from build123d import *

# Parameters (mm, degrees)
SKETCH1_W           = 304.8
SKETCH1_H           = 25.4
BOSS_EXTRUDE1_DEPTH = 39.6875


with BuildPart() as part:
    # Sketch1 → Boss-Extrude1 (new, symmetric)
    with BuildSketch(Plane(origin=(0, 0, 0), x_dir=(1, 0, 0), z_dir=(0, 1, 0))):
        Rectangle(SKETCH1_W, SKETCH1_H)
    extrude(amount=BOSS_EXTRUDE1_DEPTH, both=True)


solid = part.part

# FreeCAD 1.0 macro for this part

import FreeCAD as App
import Part
import Sketcher

V = App.Vector
Q = App.Units.Quantity


def add_polygon(sketch, points):
    """Adds a closed chain of lines whose ends are joined by coincident constraints."""
    first, n = sketch.GeometryCount, len(points)
    for a, b in zip(points, points[1:] + points[:1]):
        sketch.addGeometry(Part.LineSegment(App.Vector(*a, 0), App.Vector(*b, 0)), False)
    for i in range(n):
        sketch.addConstraint(Sketcher.Constraint("Coincident", first + i, 2, first + (i + 1) % n, 1))

doc = App.newDocument("Part")
params = doc.addObject("Spreadsheet::Sheet", "Params")
for row, (alias, value) in enumerate([
    ("sketch1_width", "12 in"),
    ("sketch1_height", "1 in"),
    ("pad1_length", "3.125 in"),
], start=1):
    params.set(f"A{row}", alias)
    params.set(f"B{row}", "=" + value)
    params.setAlias(f"B{row}", alias)

body = doc.addObject("PartDesign::Body", "Body")

# Sketch on XZ plane
sketch1 = body.newObject("Sketcher::SketchObject", "Sketch")
sketch1.AttachmentSupport = (doc.getObject("XZ_Plane"), [""])
sketch1.MapMode = "FlatFace"
add_polygon(sketch1, [(-152, -13), (-152, 13), (152, 13), (152, -13)])  # lines 0-3
sketch1.addConstraint([
    Sketcher.Constraint("Vertical", 0),
    Sketcher.Constraint("Horizontal", 1),
    Sketcher.Constraint("Vertical", 2),
    Sketcher.Constraint("Horizontal", 3),
    Sketcher.Constraint("Symmetric", 0, 2, 2, 2, -1, 1),
    Sketcher.Constraint("DistanceX", 1, 1, 1, 2, Q("12 in")),
    Sketcher.Constraint("DistanceY", 0, 1, 0, 2, Q("1 in")),
])
sketch1.setExpression("Constraints[9]", "Params.sketch1_width")
sketch1.setExpression("Constraints[10]", "Params.sketch1_height")
pad1 = body.newObject("PartDesign::Pad", "Pad")
pad1.Profile = sketch1
pad1.setExpression("Length", "Params.pad1_length")
pad1.Midplane = True

doc.recompute()
